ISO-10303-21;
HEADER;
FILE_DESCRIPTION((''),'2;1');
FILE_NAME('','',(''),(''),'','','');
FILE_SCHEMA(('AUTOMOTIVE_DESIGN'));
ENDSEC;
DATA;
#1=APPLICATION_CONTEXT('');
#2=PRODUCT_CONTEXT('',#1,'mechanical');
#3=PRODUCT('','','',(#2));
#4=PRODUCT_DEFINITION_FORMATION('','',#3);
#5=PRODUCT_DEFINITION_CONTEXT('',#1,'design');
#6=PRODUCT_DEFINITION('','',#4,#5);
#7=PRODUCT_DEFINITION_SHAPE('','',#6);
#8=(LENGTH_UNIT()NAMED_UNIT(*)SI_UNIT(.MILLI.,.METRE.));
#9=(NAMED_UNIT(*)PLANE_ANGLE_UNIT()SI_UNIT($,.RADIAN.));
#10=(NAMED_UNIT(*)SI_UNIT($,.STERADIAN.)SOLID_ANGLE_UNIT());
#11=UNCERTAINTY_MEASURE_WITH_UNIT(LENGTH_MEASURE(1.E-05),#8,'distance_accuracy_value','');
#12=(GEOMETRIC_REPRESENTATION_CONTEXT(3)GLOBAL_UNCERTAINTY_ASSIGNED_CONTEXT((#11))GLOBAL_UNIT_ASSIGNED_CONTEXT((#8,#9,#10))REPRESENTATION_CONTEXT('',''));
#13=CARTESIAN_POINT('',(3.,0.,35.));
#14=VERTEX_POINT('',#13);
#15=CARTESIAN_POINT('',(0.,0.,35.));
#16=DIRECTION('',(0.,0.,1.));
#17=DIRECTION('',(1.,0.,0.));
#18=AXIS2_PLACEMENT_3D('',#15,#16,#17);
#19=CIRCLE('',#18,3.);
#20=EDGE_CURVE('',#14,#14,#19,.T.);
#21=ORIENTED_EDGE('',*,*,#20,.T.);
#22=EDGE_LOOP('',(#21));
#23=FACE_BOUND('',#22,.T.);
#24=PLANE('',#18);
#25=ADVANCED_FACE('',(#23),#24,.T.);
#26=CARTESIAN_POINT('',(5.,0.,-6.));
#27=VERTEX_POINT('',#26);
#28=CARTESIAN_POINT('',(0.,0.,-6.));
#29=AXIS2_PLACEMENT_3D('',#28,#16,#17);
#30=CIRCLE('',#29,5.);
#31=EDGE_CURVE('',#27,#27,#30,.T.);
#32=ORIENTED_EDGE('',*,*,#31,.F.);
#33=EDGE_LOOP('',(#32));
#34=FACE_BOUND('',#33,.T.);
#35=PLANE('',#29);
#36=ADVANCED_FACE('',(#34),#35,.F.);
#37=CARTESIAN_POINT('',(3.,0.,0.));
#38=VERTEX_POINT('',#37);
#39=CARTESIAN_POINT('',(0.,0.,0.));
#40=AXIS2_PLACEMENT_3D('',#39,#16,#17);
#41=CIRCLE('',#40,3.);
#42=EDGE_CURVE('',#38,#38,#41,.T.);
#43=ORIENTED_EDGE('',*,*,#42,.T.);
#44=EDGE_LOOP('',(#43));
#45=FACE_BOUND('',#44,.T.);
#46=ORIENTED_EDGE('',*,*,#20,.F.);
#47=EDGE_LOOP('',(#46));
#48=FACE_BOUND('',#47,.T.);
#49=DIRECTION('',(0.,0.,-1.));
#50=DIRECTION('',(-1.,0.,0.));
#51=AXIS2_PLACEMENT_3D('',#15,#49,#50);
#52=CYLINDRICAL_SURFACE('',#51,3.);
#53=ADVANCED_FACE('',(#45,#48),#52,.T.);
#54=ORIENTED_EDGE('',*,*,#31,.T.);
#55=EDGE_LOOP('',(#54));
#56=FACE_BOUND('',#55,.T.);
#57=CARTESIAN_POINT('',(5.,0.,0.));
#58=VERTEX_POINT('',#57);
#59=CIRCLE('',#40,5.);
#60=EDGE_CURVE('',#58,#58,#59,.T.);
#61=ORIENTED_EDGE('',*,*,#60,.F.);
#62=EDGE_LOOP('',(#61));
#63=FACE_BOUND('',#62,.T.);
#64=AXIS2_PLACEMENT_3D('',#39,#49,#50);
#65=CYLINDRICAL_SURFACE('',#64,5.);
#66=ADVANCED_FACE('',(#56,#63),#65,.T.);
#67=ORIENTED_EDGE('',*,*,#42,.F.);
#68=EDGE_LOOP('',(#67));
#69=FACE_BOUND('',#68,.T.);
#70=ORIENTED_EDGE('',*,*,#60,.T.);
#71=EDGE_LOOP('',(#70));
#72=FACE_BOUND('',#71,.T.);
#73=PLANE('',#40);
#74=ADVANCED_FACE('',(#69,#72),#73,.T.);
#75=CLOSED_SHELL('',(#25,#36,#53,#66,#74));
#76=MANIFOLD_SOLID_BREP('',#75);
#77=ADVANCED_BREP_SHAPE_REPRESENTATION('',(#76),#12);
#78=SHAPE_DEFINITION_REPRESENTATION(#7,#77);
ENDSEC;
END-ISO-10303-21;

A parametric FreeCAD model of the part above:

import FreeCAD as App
import Part
import Sketcher
Q = App.Units.Quantity

doc = App.newDocument("Part")
params = doc.addObject("Spreadsheet::Sheet", "Params")
for row, (alias, value) in enumerate([
    ("sketch1_diameter", "10 mm"),
    ("pad1_length", "6 mm"),
    ("sketch2_diameter", "6 mm"),
    ("pad2_length", "35 mm"),
], start=1):
    params.set(f"A{row}", alias)
    params.set(f"B{row}", "=" + value)
    params.setAlias(f"B{row}", alias)

body = doc.addObject("PartDesign::Body", "Body")

# Sketch on XY plane
sketch1 = body.newObject("Sketcher::SketchObject", "Sketch")
sketch1.AttachmentSupport = (doc.getObject("XY_Plane"), [""])
sketch1.MapMode = "FlatFace"
sketch1.AttachmentOffset = App.Placement(App.Vector(0, 0, -6), App.Rotation())
sketch1.addGeometry(Part.Circle(App.Vector(0, 0, 0), App.Vector(0, 0, 1), 5), False)
sketch1.addConstraint(Sketcher.Constraint("Coincident", 0, 3, -1, 1))
sketch1.addConstraint(Sketcher.Constraint("Diameter", 0, Q("10 mm")))
sketch1.setExpression("Constraints[1]", "Params.sketch1_diameter")
pad1 = body.newObject("PartDesign::Pad", "Pad")
pad1.Profile = sketch1
pad1.setExpression("Length", "Params.pad1_length")

# Sketch on XY plane
sketch2 = body.newObject("Sketcher::SketchObject", "Sketch001")
sketch2.AttachmentSupport = (doc.getObject("XY_Plane"), [""])
sketch2.MapMode = "FlatFace"
sketch2.addGeometry(Part.Circle(App.Vector(0, 0, 0), App.Vector(0, 0, 1), 3), False)
sketch2.addConstraint(Sketcher.Constraint("Coincident", 0, 3, -1, 1))
sketch2.addConstraint(Sketcher.Constraint("Diameter", 0, Q("6 mm")))
sketch2.setExpression("Constraints[1]", "Params.sketch2_diameter")
pad2 = body.newObject("PartDesign::Pad", "Pad001")
pad2.Profile = sketch2
pad2.setExpression("Length", "Params.pad2_length")

doc.recompute()
